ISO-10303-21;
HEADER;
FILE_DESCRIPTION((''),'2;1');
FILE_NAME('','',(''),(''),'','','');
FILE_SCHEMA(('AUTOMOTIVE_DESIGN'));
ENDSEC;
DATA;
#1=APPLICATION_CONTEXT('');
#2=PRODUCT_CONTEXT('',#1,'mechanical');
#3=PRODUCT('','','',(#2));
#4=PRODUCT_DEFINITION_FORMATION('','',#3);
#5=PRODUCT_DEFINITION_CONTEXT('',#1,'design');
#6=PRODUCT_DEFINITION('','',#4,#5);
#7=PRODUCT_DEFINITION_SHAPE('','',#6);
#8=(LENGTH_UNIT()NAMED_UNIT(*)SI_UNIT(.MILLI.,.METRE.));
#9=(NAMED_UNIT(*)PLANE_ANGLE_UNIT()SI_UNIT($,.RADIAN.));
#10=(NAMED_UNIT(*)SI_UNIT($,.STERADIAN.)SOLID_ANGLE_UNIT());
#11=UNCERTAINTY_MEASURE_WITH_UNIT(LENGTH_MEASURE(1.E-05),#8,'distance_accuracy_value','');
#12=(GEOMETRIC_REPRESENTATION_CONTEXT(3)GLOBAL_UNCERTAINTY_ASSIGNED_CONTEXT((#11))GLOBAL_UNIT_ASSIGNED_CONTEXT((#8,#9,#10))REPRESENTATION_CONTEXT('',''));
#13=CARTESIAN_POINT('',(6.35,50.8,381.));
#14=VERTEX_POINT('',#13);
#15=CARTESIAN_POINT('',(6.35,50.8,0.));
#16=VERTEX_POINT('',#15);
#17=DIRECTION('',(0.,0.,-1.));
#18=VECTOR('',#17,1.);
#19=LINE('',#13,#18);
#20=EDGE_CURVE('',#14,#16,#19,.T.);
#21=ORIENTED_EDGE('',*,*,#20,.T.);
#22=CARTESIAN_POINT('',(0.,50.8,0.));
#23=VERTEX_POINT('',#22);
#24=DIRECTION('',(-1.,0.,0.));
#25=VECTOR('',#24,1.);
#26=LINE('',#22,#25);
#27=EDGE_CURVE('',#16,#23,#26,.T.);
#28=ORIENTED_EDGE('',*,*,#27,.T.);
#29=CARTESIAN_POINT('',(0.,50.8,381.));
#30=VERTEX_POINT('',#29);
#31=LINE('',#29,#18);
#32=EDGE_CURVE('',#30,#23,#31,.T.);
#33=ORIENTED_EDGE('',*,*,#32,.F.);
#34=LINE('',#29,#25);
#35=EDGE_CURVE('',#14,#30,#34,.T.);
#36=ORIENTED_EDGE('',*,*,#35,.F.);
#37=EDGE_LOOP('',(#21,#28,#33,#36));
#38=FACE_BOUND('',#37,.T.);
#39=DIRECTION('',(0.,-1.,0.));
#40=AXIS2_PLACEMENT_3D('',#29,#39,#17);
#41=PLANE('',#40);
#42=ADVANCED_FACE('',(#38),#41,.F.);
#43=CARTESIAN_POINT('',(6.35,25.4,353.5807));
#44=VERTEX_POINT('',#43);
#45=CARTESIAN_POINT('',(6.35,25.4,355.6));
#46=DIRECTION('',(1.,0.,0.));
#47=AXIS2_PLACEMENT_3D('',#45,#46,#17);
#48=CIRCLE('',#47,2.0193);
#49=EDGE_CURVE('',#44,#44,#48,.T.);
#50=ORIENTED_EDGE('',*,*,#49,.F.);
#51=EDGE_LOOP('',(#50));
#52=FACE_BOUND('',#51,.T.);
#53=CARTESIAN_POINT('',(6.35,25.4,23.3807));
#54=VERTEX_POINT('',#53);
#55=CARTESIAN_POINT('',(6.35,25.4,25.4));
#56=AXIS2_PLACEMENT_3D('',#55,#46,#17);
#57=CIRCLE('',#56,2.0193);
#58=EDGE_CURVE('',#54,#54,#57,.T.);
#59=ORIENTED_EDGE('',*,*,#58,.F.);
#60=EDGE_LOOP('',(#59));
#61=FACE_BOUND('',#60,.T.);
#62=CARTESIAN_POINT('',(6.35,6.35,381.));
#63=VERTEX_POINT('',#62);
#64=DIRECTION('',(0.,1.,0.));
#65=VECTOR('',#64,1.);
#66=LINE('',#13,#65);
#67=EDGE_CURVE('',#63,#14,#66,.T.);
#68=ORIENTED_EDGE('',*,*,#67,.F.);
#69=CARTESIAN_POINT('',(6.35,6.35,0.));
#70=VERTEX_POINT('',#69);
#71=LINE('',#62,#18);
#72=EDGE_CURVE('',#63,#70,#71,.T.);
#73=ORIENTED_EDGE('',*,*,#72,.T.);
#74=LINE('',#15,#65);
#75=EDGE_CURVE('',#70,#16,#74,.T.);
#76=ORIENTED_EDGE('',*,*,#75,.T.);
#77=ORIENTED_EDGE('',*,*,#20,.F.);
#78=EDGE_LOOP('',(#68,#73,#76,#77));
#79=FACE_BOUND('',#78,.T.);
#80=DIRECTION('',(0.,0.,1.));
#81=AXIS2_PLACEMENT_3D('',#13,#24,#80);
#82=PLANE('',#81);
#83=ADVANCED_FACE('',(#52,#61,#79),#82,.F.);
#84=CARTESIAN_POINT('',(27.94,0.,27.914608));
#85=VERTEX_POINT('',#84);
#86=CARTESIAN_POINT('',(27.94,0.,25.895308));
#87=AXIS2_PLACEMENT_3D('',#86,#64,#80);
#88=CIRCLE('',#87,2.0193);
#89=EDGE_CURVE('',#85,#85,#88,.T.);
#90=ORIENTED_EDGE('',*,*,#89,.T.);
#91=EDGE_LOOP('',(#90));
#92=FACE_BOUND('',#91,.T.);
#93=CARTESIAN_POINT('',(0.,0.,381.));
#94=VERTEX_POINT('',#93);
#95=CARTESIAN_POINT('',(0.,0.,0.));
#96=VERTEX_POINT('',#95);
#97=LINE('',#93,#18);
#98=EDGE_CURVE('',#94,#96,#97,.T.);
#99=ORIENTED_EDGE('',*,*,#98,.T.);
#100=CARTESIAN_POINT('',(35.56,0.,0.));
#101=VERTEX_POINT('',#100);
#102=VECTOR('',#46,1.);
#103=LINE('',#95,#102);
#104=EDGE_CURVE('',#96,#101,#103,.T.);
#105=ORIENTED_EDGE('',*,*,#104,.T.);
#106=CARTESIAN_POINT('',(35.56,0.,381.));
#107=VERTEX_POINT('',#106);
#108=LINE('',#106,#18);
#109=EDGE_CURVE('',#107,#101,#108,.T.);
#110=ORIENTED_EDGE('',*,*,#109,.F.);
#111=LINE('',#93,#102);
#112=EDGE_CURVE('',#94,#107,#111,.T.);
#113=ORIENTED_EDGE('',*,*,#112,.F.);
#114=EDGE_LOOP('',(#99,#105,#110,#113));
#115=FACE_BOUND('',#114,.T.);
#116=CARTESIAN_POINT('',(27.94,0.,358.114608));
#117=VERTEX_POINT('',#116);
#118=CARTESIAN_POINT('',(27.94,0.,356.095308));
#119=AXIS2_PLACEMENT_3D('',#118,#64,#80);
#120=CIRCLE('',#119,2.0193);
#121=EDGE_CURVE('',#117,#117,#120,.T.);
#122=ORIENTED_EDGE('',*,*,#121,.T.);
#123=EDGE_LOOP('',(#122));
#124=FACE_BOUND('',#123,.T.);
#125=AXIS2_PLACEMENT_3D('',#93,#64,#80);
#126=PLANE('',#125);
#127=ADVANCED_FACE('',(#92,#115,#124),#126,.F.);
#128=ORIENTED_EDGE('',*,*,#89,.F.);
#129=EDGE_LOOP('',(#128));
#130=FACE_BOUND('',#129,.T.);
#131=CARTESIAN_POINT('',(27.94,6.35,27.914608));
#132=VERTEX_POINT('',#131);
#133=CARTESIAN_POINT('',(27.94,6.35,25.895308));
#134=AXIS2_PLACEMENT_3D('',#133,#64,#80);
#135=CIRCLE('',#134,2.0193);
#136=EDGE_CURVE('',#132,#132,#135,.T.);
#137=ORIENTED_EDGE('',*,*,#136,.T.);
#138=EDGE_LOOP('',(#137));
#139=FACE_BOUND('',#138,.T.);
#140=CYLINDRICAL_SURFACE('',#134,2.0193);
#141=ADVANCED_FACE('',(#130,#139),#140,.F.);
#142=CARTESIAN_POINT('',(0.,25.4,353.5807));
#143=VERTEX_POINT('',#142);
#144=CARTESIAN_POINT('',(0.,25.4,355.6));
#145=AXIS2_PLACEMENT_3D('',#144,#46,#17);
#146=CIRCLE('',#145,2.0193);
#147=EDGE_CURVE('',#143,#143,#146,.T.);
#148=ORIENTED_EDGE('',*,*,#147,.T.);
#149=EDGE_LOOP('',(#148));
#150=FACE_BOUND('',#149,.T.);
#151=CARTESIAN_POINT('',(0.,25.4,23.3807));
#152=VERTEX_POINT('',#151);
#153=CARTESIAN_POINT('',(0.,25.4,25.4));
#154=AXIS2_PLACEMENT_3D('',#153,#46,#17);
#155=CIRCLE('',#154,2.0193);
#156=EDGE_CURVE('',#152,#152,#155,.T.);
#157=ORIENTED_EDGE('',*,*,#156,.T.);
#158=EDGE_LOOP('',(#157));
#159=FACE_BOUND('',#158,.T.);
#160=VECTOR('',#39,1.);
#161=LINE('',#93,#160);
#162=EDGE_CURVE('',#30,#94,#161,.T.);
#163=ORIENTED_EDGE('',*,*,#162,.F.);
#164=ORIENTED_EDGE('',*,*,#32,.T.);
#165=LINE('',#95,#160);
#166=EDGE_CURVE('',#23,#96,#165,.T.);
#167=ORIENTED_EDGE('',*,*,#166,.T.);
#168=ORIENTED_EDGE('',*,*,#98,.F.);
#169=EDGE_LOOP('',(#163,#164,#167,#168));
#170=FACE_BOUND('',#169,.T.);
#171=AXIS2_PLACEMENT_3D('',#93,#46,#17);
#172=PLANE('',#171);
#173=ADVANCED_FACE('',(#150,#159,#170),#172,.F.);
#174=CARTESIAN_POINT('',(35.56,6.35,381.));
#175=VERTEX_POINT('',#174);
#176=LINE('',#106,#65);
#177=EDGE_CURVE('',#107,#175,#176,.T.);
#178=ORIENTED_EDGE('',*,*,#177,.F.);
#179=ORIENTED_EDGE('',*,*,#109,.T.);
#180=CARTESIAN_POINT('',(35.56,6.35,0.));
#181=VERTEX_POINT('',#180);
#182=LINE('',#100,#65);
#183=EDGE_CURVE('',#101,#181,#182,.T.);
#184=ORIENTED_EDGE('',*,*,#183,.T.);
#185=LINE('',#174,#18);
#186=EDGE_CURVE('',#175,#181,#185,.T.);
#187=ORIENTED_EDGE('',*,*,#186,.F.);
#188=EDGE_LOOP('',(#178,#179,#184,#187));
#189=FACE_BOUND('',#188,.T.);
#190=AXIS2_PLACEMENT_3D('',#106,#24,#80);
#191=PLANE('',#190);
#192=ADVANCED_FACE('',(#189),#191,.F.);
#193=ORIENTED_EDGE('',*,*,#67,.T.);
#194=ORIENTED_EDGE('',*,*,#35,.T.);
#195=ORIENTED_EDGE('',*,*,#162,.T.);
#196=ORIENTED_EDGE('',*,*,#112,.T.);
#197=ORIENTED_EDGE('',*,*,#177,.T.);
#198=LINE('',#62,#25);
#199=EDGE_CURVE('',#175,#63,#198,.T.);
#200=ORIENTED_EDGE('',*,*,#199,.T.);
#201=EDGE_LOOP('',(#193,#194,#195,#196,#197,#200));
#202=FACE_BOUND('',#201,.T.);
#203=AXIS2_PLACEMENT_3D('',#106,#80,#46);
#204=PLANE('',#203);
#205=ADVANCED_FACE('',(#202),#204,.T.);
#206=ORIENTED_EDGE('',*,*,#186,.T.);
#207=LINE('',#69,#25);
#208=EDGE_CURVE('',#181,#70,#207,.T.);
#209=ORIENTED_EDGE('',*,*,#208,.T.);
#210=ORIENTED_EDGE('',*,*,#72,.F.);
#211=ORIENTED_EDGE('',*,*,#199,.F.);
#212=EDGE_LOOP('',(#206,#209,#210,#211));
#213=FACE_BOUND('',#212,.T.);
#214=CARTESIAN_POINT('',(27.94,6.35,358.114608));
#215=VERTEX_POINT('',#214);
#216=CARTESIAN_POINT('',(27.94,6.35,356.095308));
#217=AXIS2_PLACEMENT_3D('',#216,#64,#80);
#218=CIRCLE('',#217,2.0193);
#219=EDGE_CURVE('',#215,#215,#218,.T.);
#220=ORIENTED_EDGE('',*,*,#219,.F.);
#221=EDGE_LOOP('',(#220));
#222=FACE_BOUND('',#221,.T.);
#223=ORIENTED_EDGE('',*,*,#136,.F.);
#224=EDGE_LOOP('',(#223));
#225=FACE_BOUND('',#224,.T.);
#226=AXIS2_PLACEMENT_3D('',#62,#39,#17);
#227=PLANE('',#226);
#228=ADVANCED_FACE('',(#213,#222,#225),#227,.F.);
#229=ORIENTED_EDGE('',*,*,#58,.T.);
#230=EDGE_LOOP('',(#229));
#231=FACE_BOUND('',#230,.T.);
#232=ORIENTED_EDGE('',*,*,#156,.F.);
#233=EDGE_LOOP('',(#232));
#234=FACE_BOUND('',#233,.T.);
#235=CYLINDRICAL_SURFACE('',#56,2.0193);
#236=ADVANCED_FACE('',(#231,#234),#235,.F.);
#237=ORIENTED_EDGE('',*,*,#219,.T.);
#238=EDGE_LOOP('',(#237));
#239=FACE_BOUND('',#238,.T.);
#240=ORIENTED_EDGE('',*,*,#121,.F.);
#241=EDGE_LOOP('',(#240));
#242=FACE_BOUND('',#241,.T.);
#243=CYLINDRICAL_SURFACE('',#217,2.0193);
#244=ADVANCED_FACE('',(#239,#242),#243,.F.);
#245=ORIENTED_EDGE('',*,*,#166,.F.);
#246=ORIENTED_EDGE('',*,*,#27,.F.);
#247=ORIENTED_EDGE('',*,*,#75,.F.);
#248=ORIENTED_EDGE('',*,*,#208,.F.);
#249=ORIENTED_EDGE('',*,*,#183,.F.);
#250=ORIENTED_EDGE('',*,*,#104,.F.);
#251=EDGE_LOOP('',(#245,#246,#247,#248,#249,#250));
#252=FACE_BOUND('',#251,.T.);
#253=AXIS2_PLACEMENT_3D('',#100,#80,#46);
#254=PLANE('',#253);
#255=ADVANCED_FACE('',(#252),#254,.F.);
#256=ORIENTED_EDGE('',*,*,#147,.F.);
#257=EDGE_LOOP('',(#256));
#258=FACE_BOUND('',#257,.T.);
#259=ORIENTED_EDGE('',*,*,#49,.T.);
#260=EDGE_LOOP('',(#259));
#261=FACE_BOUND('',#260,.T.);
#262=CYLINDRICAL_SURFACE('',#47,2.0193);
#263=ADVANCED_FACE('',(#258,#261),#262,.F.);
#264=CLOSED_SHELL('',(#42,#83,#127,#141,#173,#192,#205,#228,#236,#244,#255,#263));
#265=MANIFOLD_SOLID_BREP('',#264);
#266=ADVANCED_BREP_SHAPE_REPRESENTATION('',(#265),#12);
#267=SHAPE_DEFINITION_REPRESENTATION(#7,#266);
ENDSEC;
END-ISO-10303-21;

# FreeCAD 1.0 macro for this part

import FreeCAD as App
import Part
import Sketcher
Q = App.Units.Quantity

doc = App.newDocument("Part")
body = doc.addObject("PartDesign::Body", "Body")

sketch1 = body.newObject("Sketcher::SketchObject", "Sketch")
sketch1.AttachmentSupport = (doc.getObject("XY_Plane"), [""])
sketch1.MapMode = "FlatFace"
sketch1.addGeometry([
    Part.LineSegment(App.Vector(0, 51, 0), App.Vector(0, 0, 0)),
    Part.LineSegment(App.Vector(0, 0, 0), App.Vector(36, 0, 0)),
    Part.LineSegment(App.Vector(36, 0, 0), App.Vector(36, 6, 0)),
    Part.LineSegment(App.Vector(36, 6, 0), App.Vector(6, 6, 0)),
    Part.LineSegment(App.Vector(6, 6, 0), App.Vector(6, 51, 0)),
    Part.LineSegment(App.Vector(6, 51, 0), App.Vector(0, 51, 0)),
], False)
sketch1.addConstraint([
    Sketcher.Constraint("Coincident", 0, 2, 1, 1),
    Sketcher.Constraint("Coincident", 1, 2, 2, 1),
    Sketcher.Constraint("Coincident", 2, 2, 3, 1),
    Sketcher.Constraint("Coincident", 3, 2, 4, 1),
    Sketcher.Constraint("Coincident", 4, 2, 5, 1),
    Sketcher.Constraint("Coincident", 5, 2, 0, 1),
    Sketcher.Constraint("Vertical", 0),
    Sketcher.Constraint("Horizontal", 1),
    Sketcher.Constraint("Vertical", 2),
    Sketcher.Constraint("Horizontal", 3),
    Sketcher.Constraint("Vertical", 4),
    Sketcher.Constraint("Horizontal", 5),
    Sketcher.Constraint("Coincident", 0, 2, -1, 1),
    Sketcher.Constraint("Equal", 5, 2),
    Sketcher.Constraint("DistanceY", 0, 2, 0, 1, Q("2 in")),
    Sketcher.Constraint("DistanceX", 1, 1, 1, 2, Q("1.4 in")),
    Sketcher.Constraint("DistanceX", 3, 2, 3, 1, Q("1.15 in")),
])
pad1 = body.newObject("PartDesign::Pad", "Pad")
pad1.Profile = sketch1
pad1.Length = Q("15 in")

sketch2 = body.newObject("Sketcher::SketchObject", "Sketch001")
sketch2.AttachmentSupport = (doc.getObject("YZ_Plane"), [""])
sketch2.MapMode = "FlatFace"
sketch2.AttachmentOffset = App.Placement(App.Vector(0, 0, 0.25 * 25.4), App.Rotation())
sketch2.addGeometry([
    Part.Circle(App.Vector(25.4, 355.6, 0), App.Vector(0, 0, 1), 2),
    Part.Circle(App.Vector(25.4, 25.4, 0), App.Vector(0, 0, 1), 2),
], False)
sketch2.addConstraint([
    Sketcher.Constraint("Equal", 0, 1),
    Sketcher.Constraint("Vertical", 0, 3, 1, 3),
    Sketcher.Constraint("Diameter", 0, Q("0.159 in")),
    Sketcher.Constraint("DistanceX", -1, 1, 0, 3, Q("1 in")),
    Sketcher.Constraint("DistanceY", -1, 1, 0, 3, Q("14 in")),
    Sketcher.Constraint("DistanceY", -1, 1, 1, 3, Q("1 in")),
])
doc.recompute()
hole = body.newObject("PartDesign::Hole", "Hole")
hole.Profile = sketch2
hole.ThreadType = "None"
hole.Diameter = Q("0.159 in")
hole.DepthType = "ThroughAll"

sketch3 = body.newObject("Sketcher::SketchObject", "Sketch002")
sketch3.AttachmentSupport = (doc.getObject("XZ_Plane"), [""])
sketch3.MapMode = "FlatFace"
sketch3.AttachmentOffset = App.Placement(App.Vector(0, 0, -0.25 * 25.4), App.Rotation())
sketch3.addGeometry([
    Part.Circle(App.Vector(27.9, 356.1, 0), App.Vector(0, 0, 1), 2),
    Part.Circle(App.Vector(27.9, 25.9, 0), App.Vector(0, 0, 1), 2),
], False)
sketch3.addConstraint([
    Sketcher.Constraint("Equal", 0, 1),
    Sketcher.Constraint("Vertical", 0, 3, 1, 3),
    Sketcher.Constraint("Diameter", 0, Q("0.159 in")),
    Sketcher.Constraint("DistanceY", 1, 3, 0, 3, Q("13 in")),
    Sketcher.Constraint("DistanceX", -1, 1, 0, 3, Q("1.1 in")),
    Sketcher.Constraint("DistanceY", -1, 1, 0, 3, Q("356.095308 mm")),
])
doc.recompute()
hole2 = body.newObject("PartDesign::Hole", "Hole001")
hole2.Profile = sketch3
hole2.ThreadType = "None"
hole2.Diameter = Q("0.159 in")
hole2.DepthType = "ThroughAll"
hole2.Reversed = True

doc.recompute()
